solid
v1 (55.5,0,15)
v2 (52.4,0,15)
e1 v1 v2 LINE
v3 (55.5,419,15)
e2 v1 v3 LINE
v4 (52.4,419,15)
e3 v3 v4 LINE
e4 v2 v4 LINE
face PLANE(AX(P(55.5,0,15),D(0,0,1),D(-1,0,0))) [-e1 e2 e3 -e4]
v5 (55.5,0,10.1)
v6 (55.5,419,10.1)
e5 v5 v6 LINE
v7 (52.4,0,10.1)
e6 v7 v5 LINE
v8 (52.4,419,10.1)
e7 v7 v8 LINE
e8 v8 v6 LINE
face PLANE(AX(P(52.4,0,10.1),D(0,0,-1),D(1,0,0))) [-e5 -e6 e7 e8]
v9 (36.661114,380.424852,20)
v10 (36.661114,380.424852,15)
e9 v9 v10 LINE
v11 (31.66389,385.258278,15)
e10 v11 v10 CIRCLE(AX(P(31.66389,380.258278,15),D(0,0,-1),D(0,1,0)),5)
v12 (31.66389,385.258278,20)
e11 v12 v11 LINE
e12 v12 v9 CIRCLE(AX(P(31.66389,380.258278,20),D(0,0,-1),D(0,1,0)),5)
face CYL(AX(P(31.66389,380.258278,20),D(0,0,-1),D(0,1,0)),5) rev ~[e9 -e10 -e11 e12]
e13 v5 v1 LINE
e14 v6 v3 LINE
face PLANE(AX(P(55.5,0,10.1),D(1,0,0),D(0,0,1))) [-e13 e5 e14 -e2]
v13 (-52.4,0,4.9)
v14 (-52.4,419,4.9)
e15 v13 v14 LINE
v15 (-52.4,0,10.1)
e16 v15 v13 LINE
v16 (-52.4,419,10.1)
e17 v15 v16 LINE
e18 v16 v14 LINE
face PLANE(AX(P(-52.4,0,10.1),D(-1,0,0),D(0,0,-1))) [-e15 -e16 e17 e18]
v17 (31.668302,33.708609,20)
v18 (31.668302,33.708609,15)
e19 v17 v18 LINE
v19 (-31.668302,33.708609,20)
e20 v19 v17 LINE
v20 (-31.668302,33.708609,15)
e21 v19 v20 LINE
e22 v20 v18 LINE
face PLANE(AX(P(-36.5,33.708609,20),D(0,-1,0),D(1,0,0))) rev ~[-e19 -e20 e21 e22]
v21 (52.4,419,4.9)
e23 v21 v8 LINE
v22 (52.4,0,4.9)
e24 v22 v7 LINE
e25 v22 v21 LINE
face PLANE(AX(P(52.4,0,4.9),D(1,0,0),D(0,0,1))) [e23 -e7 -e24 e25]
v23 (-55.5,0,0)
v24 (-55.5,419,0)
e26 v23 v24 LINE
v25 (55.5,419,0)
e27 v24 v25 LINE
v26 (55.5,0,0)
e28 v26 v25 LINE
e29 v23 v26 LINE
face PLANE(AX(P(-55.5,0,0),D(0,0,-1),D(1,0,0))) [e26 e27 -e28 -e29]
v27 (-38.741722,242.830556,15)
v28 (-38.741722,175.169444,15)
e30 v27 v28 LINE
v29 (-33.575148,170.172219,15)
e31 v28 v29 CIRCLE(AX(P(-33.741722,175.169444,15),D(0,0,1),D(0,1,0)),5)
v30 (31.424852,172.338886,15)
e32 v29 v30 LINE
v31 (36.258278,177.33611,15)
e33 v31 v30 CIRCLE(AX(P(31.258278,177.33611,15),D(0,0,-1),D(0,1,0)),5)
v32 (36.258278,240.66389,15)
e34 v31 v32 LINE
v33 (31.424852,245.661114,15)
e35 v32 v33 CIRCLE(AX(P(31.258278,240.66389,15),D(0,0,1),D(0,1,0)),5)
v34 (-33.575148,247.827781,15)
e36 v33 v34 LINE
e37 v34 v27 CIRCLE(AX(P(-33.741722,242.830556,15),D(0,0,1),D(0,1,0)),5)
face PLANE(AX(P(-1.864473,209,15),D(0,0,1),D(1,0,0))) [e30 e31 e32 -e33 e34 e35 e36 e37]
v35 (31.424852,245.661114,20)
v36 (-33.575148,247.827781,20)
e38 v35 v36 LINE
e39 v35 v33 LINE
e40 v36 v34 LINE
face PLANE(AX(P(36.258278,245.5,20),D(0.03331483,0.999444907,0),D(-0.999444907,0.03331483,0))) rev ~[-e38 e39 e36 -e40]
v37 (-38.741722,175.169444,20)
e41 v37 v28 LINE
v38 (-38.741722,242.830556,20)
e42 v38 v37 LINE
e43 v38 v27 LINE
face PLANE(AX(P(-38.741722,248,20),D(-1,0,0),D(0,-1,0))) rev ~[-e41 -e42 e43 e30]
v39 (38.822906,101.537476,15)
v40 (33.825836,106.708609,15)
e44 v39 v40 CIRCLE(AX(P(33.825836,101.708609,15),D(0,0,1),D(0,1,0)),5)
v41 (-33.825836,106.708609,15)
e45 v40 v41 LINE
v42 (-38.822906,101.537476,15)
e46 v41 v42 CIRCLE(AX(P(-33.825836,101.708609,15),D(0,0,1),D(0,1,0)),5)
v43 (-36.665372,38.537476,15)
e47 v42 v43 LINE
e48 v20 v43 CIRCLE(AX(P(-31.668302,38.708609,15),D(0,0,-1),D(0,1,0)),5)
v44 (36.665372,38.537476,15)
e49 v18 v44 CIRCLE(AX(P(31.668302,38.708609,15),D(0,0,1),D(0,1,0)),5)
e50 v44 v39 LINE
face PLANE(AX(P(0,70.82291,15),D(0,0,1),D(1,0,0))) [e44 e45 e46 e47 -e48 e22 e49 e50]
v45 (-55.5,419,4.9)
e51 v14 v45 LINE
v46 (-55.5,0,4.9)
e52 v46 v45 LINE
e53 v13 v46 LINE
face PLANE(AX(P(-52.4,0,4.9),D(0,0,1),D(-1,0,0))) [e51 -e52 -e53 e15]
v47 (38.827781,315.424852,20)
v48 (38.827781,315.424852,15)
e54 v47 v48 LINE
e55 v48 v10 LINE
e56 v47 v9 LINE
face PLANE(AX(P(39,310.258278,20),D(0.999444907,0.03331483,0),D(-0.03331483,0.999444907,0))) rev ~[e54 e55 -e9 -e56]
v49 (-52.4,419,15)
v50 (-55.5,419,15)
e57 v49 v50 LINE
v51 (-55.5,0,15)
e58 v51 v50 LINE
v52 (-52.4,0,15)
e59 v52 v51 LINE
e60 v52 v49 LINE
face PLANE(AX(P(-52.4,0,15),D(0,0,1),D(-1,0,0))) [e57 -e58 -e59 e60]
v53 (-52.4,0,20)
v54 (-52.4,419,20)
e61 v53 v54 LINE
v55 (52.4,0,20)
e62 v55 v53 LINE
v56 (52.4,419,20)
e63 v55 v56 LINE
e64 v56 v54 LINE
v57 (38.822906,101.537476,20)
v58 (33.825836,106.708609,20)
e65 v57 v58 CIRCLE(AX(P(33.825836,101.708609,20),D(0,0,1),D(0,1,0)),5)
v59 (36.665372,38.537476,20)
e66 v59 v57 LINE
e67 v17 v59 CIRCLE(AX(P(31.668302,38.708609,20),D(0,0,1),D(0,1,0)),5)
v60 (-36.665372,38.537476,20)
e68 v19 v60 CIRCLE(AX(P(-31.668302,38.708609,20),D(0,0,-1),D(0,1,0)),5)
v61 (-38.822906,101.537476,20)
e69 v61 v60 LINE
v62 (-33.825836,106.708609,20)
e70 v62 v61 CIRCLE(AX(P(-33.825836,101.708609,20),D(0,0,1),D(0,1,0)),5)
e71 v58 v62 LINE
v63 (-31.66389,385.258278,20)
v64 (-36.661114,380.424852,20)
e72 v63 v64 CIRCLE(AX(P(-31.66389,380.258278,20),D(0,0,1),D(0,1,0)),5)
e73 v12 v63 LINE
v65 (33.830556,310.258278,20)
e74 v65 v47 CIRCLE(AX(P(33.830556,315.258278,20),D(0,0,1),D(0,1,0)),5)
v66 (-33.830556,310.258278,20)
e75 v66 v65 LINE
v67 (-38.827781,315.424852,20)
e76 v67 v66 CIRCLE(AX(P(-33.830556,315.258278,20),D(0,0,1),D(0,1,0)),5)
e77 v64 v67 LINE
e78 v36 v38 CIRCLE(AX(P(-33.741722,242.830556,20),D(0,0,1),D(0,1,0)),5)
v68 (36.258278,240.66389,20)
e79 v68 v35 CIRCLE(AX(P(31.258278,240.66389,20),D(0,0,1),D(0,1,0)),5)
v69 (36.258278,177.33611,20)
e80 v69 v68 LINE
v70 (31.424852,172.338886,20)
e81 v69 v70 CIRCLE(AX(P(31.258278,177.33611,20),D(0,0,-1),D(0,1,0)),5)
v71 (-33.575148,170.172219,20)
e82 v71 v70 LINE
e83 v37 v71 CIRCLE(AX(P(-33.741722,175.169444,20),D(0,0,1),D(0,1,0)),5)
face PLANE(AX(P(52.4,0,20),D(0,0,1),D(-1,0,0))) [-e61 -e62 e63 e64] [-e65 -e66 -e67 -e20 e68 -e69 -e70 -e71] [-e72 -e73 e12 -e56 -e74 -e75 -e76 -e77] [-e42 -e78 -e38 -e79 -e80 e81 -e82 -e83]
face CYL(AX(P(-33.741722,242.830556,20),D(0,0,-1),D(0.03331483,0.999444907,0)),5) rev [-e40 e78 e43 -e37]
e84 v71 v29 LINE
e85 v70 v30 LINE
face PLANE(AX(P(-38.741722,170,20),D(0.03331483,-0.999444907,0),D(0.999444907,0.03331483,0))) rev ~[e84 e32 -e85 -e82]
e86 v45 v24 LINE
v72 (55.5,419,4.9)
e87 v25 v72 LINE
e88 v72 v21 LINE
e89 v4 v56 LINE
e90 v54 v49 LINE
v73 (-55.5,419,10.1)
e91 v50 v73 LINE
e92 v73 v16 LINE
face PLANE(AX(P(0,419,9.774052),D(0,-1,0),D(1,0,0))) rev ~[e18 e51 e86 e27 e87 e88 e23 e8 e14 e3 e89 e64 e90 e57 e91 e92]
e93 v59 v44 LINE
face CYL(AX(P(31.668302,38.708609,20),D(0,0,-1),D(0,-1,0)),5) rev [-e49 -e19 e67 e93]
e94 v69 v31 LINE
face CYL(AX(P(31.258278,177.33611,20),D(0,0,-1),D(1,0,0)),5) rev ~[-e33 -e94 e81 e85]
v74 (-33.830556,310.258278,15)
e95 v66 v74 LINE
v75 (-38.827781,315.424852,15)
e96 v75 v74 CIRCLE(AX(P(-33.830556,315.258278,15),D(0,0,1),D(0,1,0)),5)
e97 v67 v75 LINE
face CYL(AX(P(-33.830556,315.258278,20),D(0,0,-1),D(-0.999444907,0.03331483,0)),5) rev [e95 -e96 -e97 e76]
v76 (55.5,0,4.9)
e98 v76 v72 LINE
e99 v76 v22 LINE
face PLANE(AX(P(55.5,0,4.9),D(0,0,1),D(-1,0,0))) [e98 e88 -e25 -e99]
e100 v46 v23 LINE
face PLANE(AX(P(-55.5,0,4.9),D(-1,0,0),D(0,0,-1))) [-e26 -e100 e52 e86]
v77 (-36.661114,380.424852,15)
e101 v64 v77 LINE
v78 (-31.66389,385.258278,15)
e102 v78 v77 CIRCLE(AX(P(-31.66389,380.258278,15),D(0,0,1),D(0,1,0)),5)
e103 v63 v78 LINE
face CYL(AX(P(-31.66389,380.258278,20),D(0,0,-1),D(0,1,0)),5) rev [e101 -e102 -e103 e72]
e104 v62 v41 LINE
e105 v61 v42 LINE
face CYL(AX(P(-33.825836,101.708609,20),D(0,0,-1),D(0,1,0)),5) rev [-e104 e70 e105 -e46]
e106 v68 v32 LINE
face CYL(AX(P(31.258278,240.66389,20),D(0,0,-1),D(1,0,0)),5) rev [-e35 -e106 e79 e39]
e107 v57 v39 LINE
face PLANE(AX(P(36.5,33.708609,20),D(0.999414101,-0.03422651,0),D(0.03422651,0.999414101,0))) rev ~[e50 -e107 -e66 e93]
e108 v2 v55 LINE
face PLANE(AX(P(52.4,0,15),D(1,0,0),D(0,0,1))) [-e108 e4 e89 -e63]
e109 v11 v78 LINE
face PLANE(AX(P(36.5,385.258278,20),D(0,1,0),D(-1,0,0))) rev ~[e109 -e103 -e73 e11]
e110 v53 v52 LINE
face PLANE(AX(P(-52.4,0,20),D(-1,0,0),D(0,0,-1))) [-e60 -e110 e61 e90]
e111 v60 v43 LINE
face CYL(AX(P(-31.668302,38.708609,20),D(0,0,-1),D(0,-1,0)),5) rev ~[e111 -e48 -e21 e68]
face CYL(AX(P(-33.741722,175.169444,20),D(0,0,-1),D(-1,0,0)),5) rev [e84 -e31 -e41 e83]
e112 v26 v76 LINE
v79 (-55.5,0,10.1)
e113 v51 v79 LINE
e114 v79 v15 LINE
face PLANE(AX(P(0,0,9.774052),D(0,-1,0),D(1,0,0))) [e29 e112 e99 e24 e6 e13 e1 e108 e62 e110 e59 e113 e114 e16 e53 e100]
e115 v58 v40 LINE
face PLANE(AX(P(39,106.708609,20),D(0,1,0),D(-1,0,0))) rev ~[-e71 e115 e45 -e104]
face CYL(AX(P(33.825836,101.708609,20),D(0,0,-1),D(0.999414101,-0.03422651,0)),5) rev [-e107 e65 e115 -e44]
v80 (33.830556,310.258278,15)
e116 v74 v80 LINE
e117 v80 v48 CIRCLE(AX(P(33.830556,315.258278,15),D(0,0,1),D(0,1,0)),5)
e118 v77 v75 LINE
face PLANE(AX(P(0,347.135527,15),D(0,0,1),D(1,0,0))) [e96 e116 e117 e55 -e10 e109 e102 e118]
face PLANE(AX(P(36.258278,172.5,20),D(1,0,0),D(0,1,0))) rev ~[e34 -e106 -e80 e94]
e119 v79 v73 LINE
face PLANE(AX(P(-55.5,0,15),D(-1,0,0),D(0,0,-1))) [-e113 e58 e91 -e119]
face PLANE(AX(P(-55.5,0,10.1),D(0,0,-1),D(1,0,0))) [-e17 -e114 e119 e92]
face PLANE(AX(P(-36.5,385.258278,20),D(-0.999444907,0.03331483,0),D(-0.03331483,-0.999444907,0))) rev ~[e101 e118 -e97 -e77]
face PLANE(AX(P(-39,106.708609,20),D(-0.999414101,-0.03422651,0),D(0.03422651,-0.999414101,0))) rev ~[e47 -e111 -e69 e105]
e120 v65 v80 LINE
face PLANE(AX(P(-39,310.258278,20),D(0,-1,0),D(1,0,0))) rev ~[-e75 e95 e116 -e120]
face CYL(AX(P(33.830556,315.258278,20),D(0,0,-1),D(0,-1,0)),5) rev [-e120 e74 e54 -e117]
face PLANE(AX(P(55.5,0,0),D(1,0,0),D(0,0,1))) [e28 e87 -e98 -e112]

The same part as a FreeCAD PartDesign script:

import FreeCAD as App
import Part
import Sketcher
Q = App.Units.Quantity


def edges_at(feature, points):
    """Names of the edges that pass closest to the given points."""
    edges = feature.Shape.Edges
    near = lambda p: min(range(len(edges)), key=lambda i: edges[i].distToShape(Part.Vertex(*p))[0])
    return sorted({f"Edge{near(p) + 1}" for p in points})

doc = App.newDocument("Part")
params = doc.addObject("Spreadsheet::Sheet", "Params")
for row, (alias, value) in enumerate([
    ("sketch1_width", "111 mm"),
    ("sketch1_height", "5 mm"),
    ("sketch1_width2", "3.1 mm"),
    ("sketch1_height2", "4.9 mm"),
    ("sketch1_height3", "5.2 mm"),
    ("pad1_length", "419 mm"),
    ("sketch2_width", "73 mm"),
    ("sketch2_width2", "78 mm"),
    ("pocket1_length", "5 mm"),
    ("fillet_radius", "5 mm"),
], start=1):
    params.set(f"A{row}", alias)
    params.set(f"B{row}", "=" + value)
    params.setAlias(f"B{row}", alias)

body = doc.addObject("PartDesign::Body", "Body")

# Sketch on XZ plane
sketch1 = body.newObject("Sketcher::SketchObject", "Sketch")
sketch1.AttachmentSupport = (doc.getObject("XZ_Plane"), [""])
sketch1.MapMode = "FlatFace"
sketch1.addGeometry(Part.LineSegment(App.Vector(-55.5, 0, 0), App.Vector(55.5, 0, 0)), False)
sketch1.addGeometry(Part.LineSegment(App.Vector(55.5, 0, 0), App.Vector(55.5, 4.9, 0)), False)
sketch1.addGeometry(Part.LineSegment(App.Vector(55.5, 4.9, 0), App.Vector(52.4, 4.9, 0)), False)
sketch1.addGeometry(Part.LineSegment(App.Vector(52.4, 4.9, 0), App.Vector(52.4, 10.1, 0)), False)
sketch1.addGeometry(Part.LineSegment(App.Vector(52.4, 10.1, 0), App.Vector(55.5, 10.1, 0)), False)
sketch1.addGeometry(Part.LineSegment(App.Vector(55.5, 10.1, 0), App.Vector(55.5, 15, 0)), False)
sketch1.addGeometry(Part.LineSegment(App.Vector(55.5, 15, 0), App.Vector(52.4, 15, 0)), False)
sketch1.addGeometry(Part.LineSegment(App.Vector(52.4, 15, 0), App.Vector(52.4, 20, 0)), False)
sketch1.addGeometry(Part.LineSegment(App.Vector(52.4, 20, 0), App.Vector(-52.4, 20, 0)), False)
sketch1.addGeometry(Part.LineSegment(App.Vector(-52.4, 20, 0), App.Vector(-52.4, 15, 0)), False)
sketch1.addGeometry(Part.LineSegment(App.Vector(-52.4, 15, 0), App.Vector(-55.5, 15, 0)), False)
sketch1.addGeometry(Part.LineSegment(App.Vector(-55.5, 15, 0), App.Vector(-55.5, 10.1, 0)), False)
sketch1.addGeometry(Part.LineSegment(App.Vector(-55.5, 10.1, 0), App.Vector(-52.4, 10.1, 0)), False)
sketch1.addGeometry(Part.LineSegment(App.Vector(-52.4, 10.1, 0), App.Vector(-52.4, 4.9, 0)), False)
sketch1.addGeometry(Part.LineSegment(App.Vector(-52.4, 4.9, 0), App.Vector(-55.5, 4.9, 0)), False)
sketch1.addGeometry(Part.LineSegment(App.Vector(-55.5, 4.9, 0), App.Vector(-55.5, 0, 0)), False)
sketch1.addConstraint(Sketcher.Constraint("Coincident", 0, 2, 1, 1))
sketch1.addConstraint(Sketcher.Constraint("Coincident", 1, 2, 2, 1))
sketch1.addConstraint(Sketcher.Constraint("Coincident", 2, 2, 3, 1))
sketch1.addConstraint(Sketcher.Constraint("Coincident", 3, 2, 4, 1))
sketch1.addConstraint(Sketcher.Constraint("Coincident", 4, 2, 5, 1))
sketch1.addConstraint(Sketcher.Constraint("Coincident", 5, 2, 6, 1))
sketch1.addConstraint(Sketcher.Constraint("Coincident", 6, 2, 7, 1))
sketch1.addConstraint(Sketcher.Constraint("Coincident", 7, 2, 8, 1))
sketch1.addConstraint(Sketcher.Constraint("Coincident", 8, 2, 9, 1))
sketch1.addConstraint(Sketcher.Constraint("Coincident", 9, 2, 10, 1))
sketch1.addConstraint(Sketcher.Constraint("Coincident", 10, 2, 11, 1))
sketch1.addConstraint(Sketcher.Constraint("Coincident", 11, 2, 12, 1))
sketch1.addConstraint(Sketcher.Constraint("Coincident", 12, 2, 13, 1))
sketch1.addConstraint(Sketcher.Constraint("Coincident", 13, 2, 14, 1))
sketch1.addConstraint(Sketcher.Constraint("Coincident", 14, 2, 15, 1))
sketch1.addConstraint(Sketcher.Constraint("Coincident", 15, 2, 0, 1))
sketch1.addConstraint(Sketcher.Constraint("Horizontal", 0))
sketch1.addConstraint(Sketcher.Constraint("Vertical", 1))
sketch1.addConstraint(Sketcher.Constraint("Horizontal", 2))
sketch1.addConstraint(Sketcher.Constraint("Vertical", 3))
sketch1.addConstraint(Sketcher.Constraint("Horizontal", 4))
sketch1.addConstraint(Sketcher.Constraint("Vertical", 5))
sketch1.addConstraint(Sketcher.Constraint("Horizontal", 6))
sketch1.addConstraint(Sketcher.Constraint("Vertical", 7))
sketch1.addConstraint(Sketcher.Constraint("Horizontal", 8))
sketch1.addConstraint(Sketcher.Constraint("Vertical", 9))
sketch1.addConstraint(Sketcher.Constraint("Horizontal", 10))
sketch1.addConstraint(Sketcher.Constraint("Vertical", 11))
sketch1.addConstraint(Sketcher.Constraint("Horizontal", 12))
sketch1.addConstraint(Sketcher.Constraint("Vertical", 13))
sketch1.addConstraint(Sketcher.Constraint("Horizontal", 14))
sketch1.addConstraint(Sketcher.Constraint("Vertical", 15))
sketch1.addConstraint(Sketcher.Constraint("Symmetric", 0, 2, 15, 2, -1, 1))
sketch1.addConstraint(Sketcher.Constraint("Symmetric", 6, 2, 9, 2, -2))
sketch1.addConstraint(Sketcher.Constraint("Symmetric", 4, 2, 11, 2, -2))
sketch1.addConstraint(Sketcher.Constraint("Symmetric", 2, 2, 13, 2, -2))
sketch1.addConstraint(Sketcher.Constraint("Vertical", 1, 2, 4, 2))
sketch1.addConstraint(Sketcher.Constraint("Vertical", 3, 2, 6, 2))
sketch1.addConstraint(Sketcher.Constraint("Equal", 1, 5))
sketch1.addConstraint(Sketcher.Constraint("DistanceX", 0, 1, 0, 2, Q("111 mm")))
sketch1.addConstraint(Sketcher.Constraint("DistanceY", 7, 1, 7, 2, Q("5 mm")))
sketch1.addConstraint(Sketcher.Constraint("DistanceX", 2, 2, 2, 1, Q("3.1 mm")))
sketch1.addConstraint(Sketcher.Constraint("DistanceY", 1, 1, 1, 2, Q("4.9 mm")))
sketch1.addConstraint(Sketcher.Constraint("DistanceY", 3, 1, 3, 2, Q("5.2 mm")))
sketch1.setExpression("Constraints[39]", "Params.sketch1_width")
sketch1.setExpression("Constraints[40]", "Params.sketch1_height")
sketch1.setExpression("Constraints[41]", "Params.sketch1_width2")
sketch1.setExpression("Constraints[42]", "Params.sketch1_height2")
sketch1.setExpression("Constraints[43]", "Params.sketch1_height3")
pad1 = body.newObject("PartDesign::Pad", "Pad")
pad1.Profile = sketch1
pad1.setExpression("Length", "Params.pad1_length")
pad1.Reversed = True

# Sketch on XY plane
sketch2 = body.newObject("Sketcher::SketchObject", "Sketch001")
sketch2.AttachmentSupport = (doc.getObject("XY_Plane"), [""])
sketch2.MapMode = "FlatFace"
sketch2.AttachmentOffset = App.Placement(App.Vector(0, 0, 20), App.Rotation())
sketch2.addGeometry(Part.LineSegment(App.Vector(36, 385, 0), App.Vector(-36, 385, 0)), False)
sketch2.addGeometry(Part.LineSegment(App.Vector(-36, 385, 0), App.Vector(-39, 310, 0)), False)
sketch2.addGeometry(Part.LineSegment(App.Vector(-39, 310, 0), App.Vector(39, 310, 0)), False)
sketch2.addGeometry(Part.LineSegment(App.Vector(39, 310, 0), App.Vector(36, 385, 0)), False)
sketch2.addGeometry(Part.LineSegment(App.Vector(-36, 34, 0), App.Vector(36, 34, 0)), False)
sketch2.addGeometry(Part.LineSegment(App.Vector(36, 34, 0), App.Vector(39, 107, 0)), False)
sketch2.addGeometry(Part.LineSegment(App.Vector(39, 107, 0), App.Vector(-39, 107, 0)), False)
sketch2.addGeometry(Part.LineSegment(App.Vector(-39, 107, 0), App.Vector(-36, 34, 0)), False)
sketch2.addGeometry(Part.LineSegment(App.Vector(36, 172, 0), App.Vector(36, 246, 0)), False)
sketch2.addGeometry(Part.LineSegment(App.Vector(36, 246, 0), App.Vector(-39, 248, 0)), False)
sketch2.addGeometry(Part.LineSegment(App.Vector(-39, 248, 0), App.Vector(-39, 170, 0)), False)
sketch2.addGeometry(Part.LineSegment(App.Vector(-39, 170, 0), App.Vector(36, 172, 0)), False)
sketch2.addConstraint(Sketcher.Constraint("Coincident", 0, 2, 1, 1))
sketch2.addConstraint(Sketcher.Constraint("Coincident", 1, 2, 2, 1))
sketch2.addConstraint(Sketcher.Constraint("Coincident", 2, 2, 3, 1))
sketch2.addConstraint(Sketcher.Constraint("Coincident", 3, 2, 0, 1))
sketch2.addConstraint(Sketcher.Constraint("Coincident", 4, 2, 5, 1))
sketch2.addConstraint(Sketcher.Constraint("Coincident", 5, 2, 6, 1))
sketch2.addConstraint(Sketcher.Constraint("Coincident", 6, 2, 7, 1))
sketch2.addConstraint(Sketcher.Constraint("Coincident", 7, 2, 4, 1))
sketch2.addConstraint(Sketcher.Constraint("Coincident", 8, 2, 9, 1))
sketch2.addConstraint(Sketcher.Constraint("Coincident", 9, 2, 10, 1))
sketch2.addConstraint(Sketcher.Constraint("Coincident", 10, 2, 11, 1))
sketch2.addConstraint(Sketcher.Constraint("Coincident", 11, 2, 8, 1))
sketch2.addConstraint(Sketcher.Constraint("Horizontal", 0))
sketch2.addConstraint(Sketcher.Constraint("Horizontal", 2))
sketch2.addConstraint(Sketcher.Constraint("Horizontal", 4))
sketch2.addConstraint(Sketcher.Constraint("Horizontal", 6))
sketch2.addConstraint(Sketcher.Constraint("Vertical", 8))
sketch2.addConstraint(Sketcher.Constraint("Vertical", 10))
sketch2.addConstraint(Sketcher.Constraint("Perpendicular", 1, 9))
sketch2.addConstraint(Sketcher.Constraint("Perpendicular", 3, 11))
sketch2.addConstraint(Sketcher.Constraint("Vertical", 3, 2, 4, 2))
sketch2.addConstraint(Sketcher.Constraint("Vertical", 2, 2, 5, 2))
sketch2.addConstraint(Sketcher.Constraint("Vertical", 1, 2, 6, 2))
sketch2.addConstraint(Sketcher.Constraint("Vertical", 0, 2, 7, 2))
sketch2.addConstraint(Sketcher.Constraint("Equal", 4, 8))
sketch2.addConstraint(Sketcher.Constraint("Equal", 6, 10))
sketch2.addConstraint(Sketcher.Constraint("Equal", 1, 3))
sketch2.addConstraint(Sketcher.Constraint("DistanceX", 0, 2, 0, 1, Q("73 mm")))
sketch2.addConstraint(Sketcher.Constraint("DistanceX", 2, 1, 2, 2, Q("78 mm")))
sketch2.addConstraint(Sketcher.Constraint("DistanceX", 1, 2, -1, 1, Q("39 mm")))
sketch2.addConstraint(Sketcher.Constraint("DistanceY", -1, 1, 9, 2, Q("248 mm")))
sketch2.addConstraint(Sketcher.Constraint("DistanceY", 1, 2, 0, 2, Q("75 mm")))
sketch2.addConstraint(Sketcher.Constraint("DistanceY", 4, 2, 5, 2, Q("73 mm")))
sketch2.addConstraint(Sketcher.Constraint("DistanceY", -1, 1, 0, 2, Q("385.258278 mm")))
sketch2.addConstraint(Sketcher.Constraint("DistanceY", -1, 1, 4, 2, Q("33.708609 mm")))
sketch2.addConstraint(Sketcher.Constraint("DistanceX", -1, 1, 8, 2, Q("36.258278 mm")))
sketch2.setExpression("Constraints[27]", "Params.sketch2_width")
sketch2.setExpression("Constraints[28]", "Params.sketch2_width2")
pocket1 = body.newObject("PartDesign::Pocket", "Pocket")
pocket1.Profile = sketch2
pocket1.setExpression("Length", "Params.pocket1_length")
doc.recompute()

fillet = body.newObject("PartDesign::Fillet", "Fillet")
fillet.Base = (pocket1, edges_at(pocket1, [
    (-36.5, 385.258, 17.5),
    (36.5, 385.258, 17.5),
    (-39, 310.258, 17.5),
    (39, 310.258, 17.5),
    (-38.742, 248, 17.5),
    (36.258, 245.5, 17.5),
    (39, 106.709, 17.5),
    (-39, 106.709, 17.5),
    (-38.742, 170, 17.5),
    (36.258, 172.5, 17.5),
    (36.5, 33.709, 17.5),
    (-36.5, 33.709, 17.5),
]))
fillet.setExpression("Radius", "Params.fillet_radius")

doc.recompute()
